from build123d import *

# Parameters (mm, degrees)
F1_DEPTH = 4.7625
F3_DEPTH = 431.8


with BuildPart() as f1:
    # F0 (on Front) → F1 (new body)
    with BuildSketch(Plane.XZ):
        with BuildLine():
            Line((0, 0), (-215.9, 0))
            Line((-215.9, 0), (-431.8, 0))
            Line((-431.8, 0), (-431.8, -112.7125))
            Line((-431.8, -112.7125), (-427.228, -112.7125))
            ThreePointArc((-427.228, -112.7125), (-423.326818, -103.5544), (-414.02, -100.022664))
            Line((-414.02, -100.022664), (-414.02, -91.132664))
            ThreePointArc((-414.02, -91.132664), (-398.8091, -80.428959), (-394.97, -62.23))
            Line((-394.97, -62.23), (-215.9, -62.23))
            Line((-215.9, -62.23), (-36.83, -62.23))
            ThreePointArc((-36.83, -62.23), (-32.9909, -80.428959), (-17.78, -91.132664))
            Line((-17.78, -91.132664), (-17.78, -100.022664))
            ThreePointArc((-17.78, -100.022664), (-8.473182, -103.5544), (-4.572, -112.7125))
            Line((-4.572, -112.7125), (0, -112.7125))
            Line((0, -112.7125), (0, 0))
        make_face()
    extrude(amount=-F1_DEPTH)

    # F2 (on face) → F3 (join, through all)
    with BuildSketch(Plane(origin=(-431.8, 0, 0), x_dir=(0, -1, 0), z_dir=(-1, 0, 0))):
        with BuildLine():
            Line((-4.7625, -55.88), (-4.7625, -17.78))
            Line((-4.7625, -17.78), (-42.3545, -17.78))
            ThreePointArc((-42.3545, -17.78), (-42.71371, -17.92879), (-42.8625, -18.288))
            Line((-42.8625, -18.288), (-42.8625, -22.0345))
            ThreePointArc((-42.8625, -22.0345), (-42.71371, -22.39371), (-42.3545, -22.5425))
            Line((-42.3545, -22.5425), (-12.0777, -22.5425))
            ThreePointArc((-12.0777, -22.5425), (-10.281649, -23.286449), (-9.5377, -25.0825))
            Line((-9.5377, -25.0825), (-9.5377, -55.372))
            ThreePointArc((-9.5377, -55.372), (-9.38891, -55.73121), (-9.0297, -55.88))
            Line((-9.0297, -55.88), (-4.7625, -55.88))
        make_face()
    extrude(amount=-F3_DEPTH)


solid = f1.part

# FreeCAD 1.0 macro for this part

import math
import FreeCAD as App
import Part
import Sketcher

V = App.Vector
Q = App.Units.Quantity

doc = App.newDocument("Part")
body = doc.addObject("PartDesign::Body", "Body")

# Sketch on XZ plane
sketch1 = doc.addObject("Sketcher::SketchObject", "Sketch")
body.addObject(sketch1)
sketch1.AttachmentSupport = (doc.XZ_Plane, [""])
sketch1.MapMode = "FlatFace"
sketch1.addGeometry([
    Part.LineSegment(V(0, 0, 0), V(-431.8, 0, 0)),  # 0
    Part.LineSegment(V(-431.8, 0, 0), V(-431.8, -112.7125, 0)),  # 1
    Part.LineSegment(V(-431.8, -112.7125, 0), V(-427.228, -112.7125, 0)),  # 2
    Part.ArcOfCircle(Part.Circle(V(-414.527999, -112.712501, 0), V(0, 0, 1), 12.700001), math.radians(87.70756), math.radians(179.999997)),  # 3
    Part.LineSegment(V(-414.02, -100.022664, 0), V(-414.02, -91.132664, 0)),  # 4
    Part.ArcOfCircle(Part.Circle(V(-420.016864, -66.450735, 0), V(0, 0, 1), 25.4), math.radians(-76.343704), math.radians(9.565248)),  # 5
    Part.LineSegment(V(-394.97, -62.23, 0), V(-36.83, -62.23, 0)),  # 6
    Part.ArcOfCircle(Part.Circle(V(-11.783136, -66.450735, 0), V(0, 0, 1), 25.4), math.radians(170.434752), math.radians(256.343704)),  # 7
    Part.LineSegment(V(-17.78, -91.132664, 0), V(-17.78, -100.022664, 0)),  # 8
    Part.ArcOfCircle(Part.Circle(V(-17.272001, -112.712501, 0), V(0, 0, 1), 12.700001), math.radians(0.000003), math.radians(92.29244)),  # 9
    Part.LineSegment(V(-4.572, -112.7125, 0), V(0, -112.7125, 0)),  # 10
    Part.LineSegment(V(0, -112.7125, 0), V(0, 0, 0)),  # 11
], False)
sketch1.addConstraint([
    Sketcher.Constraint("Coincident", 0, 2, 1, 1),
    Sketcher.Constraint("Coincident", 1, 2, 2, 1),
    Sketcher.Constraint("Coincident", 2, 2, 3, 2),
    Sketcher.Constraint("Coincident", 3, 1, 4, 1),
    Sketcher.Constraint("Coincident", 4, 2, 5, 1),
    Sketcher.Constraint("Coincident", 5, 2, 6, 1),
    Sketcher.Constraint("Coincident", 6, 2, 7, 1),
    Sketcher.Constraint("Coincident", 7, 2, 8, 1),
    Sketcher.Constraint("Coincident", 8, 2, 9, 2),
    Sketcher.Constraint("Coincident", 9, 1, 10, 1),
    Sketcher.Constraint("Coincident", 10, 2, 11, 1),
    Sketcher.Constraint("Coincident", 11, 2, 0, 1),
    Sketcher.Constraint("Horizontal", 0),
    Sketcher.Constraint("Vertical", 1),
    Sketcher.Constraint("Horizontal", 2),
    Sketcher.Constraint("Vertical", 4),
    Sketcher.Constraint("Horizontal", 6),
    Sketcher.Constraint("Vertical", 8),
    Sketcher.Constraint("Horizontal", 10),
    Sketcher.Constraint("Vertical", 11),
    Sketcher.Constraint("Coincident", 11, 2, -1, 1),
    Sketcher.Constraint("Equal", 5, 7),
    Sketcher.Constraint("Equal", 3, 9),
    Sketcher.Constraint("Horizontal", 5, 3, 7, 3),
    Sketcher.Constraint("Horizontal", 3, 3, 9, 3),
    Sketcher.Constraint("Horizontal", 9, 3, 1, 2),
    Sketcher.Constraint("Horizontal", 4, 2, 7, 2),
    Sketcher.Constraint("Horizontal", 3, 1, 8, 2),
    Sketcher.Constraint("Horizontal", 2, 2, 9, 1),
    Sketcher.Constraint("Equal", 2, 10),
    Sketcher.Constraint("Radius", 5, Q("1 in")),
    Sketcher.Constraint("Radius", 3, Q("0.5 in")),
    Sketcher.Constraint("DistanceX", 0, 2, 0, 1, Q("17 in")),
    Sketcher.Constraint("DistanceX", 6, 1, 6, 2, Q("14.1 in")),
    Sketcher.Constraint("DistanceX", 2, 1, 2, 2, Q("0.18 in")),
    Sketcher.Constraint("DistanceY", 4, 1, 4, 2, Q("0.35 in")),
    Sketcher.Constraint("DistanceX", 3, 1, -1, 1, Q("16.3 in")),
    Sketcher.Constraint("DistanceY", 1, 2, 1, 1, Q("4.4375 in")),
    Sketcher.Constraint("DistanceY", 5, 2, -1, 1, Q("2.45 in")),
])
pad1 = doc.addObject("PartDesign::Pad", "Pad")
body.addObject(pad1)
pad1.Profile = sketch1
pad1.Length = Q("0.1875 in")
pad1.Reversed = True

# Sketch on YZ plane
sketch2 = doc.addObject("Sketcher::SketchObject", "Sketch001")
body.addObject(sketch2)
sketch2.AttachmentSupport = (doc.YZ_Plane, [""])
sketch2.MapMode = "FlatFace"
sketch2.AttachmentOffset = App.Placement(V(0, 0, -17 * 25.4), App.Rotation())
sketch2.addGeometry([
    Part.LineSegment(V(4.7625, -55.88, 0), V(4.7625, -17.78, 0)),  # 0
    Part.LineSegment(V(4.7625, -17.78, 0), V(42.3545, -17.78, 0)),  # 1
    Part.ArcOfCircle(Part.Circle(V(42.354499, -18.288001, 0), V(0, 0, 1), 0.508001), math.radians(0.000094), math.radians(89.999906)),  # 2
    Part.LineSegment(V(42.8625, -18.288, 0), V(42.8625, -22.0345, 0)),  # 3
    Part.ArcOfCircle(Part.Circle(V(42.354499, -22.034499, 0), V(0, 0, 1), 0.508001), math.radians(-89.999906), math.radians(-0.000094)),  # 4
    Part.LineSegment(V(42.3545, -22.5425, 0), V(12.0777, -22.5425, 0)),  # 5
    Part.ArcOfCircle(Part.Circle(V(12.077701, -25.082501, 0), V(0, 0, 1), 2.540001), math.radians(90.000017), math.radians(179.999983)),  # 6
    Part.LineSegment(V(9.5377, -25.0825, 0), V(9.5377, -55.372, 0)),  # 7
    Part.ArcOfCircle(Part.Circle(V(9.029699, -55.371999, 0), V(0, 0, 1), 0.508001), math.radians(-89.999906), math.radians(-0.000094)),  # 8
    Part.LineSegment(V(9.0297, -55.88, 0), V(4.7625, -55.88, 0)),  # 9
], False)
sketch2.addConstraint([
    Sketcher.Constraint("Coincident", 0, 2, 1, 1),
    Sketcher.Constraint("Tangent", 1, 2, 2, 2),
    Sketcher.Constraint("Tangent", 2, 1, 3, 1),
    Sketcher.Constraint("Tangent", 3, 2, 4, 2),
    Sketcher.Constraint("Tangent", 4, 1, 5, 1),
    Sketcher.Constraint("Tangent", 5, 2, 6, 1),
    Sketcher.Constraint("Tangent", 6, 2, 7, 1),
    Sketcher.Constraint("Tangent", 7, 2, 8, 2),
    Sketcher.Constraint("Tangent", 8, 1, 9, 1),
    Sketcher.Constraint("Coincident", 9, 2, 0, 1),
    Sketcher.Constraint("Vertical", 0),
    Sketcher.Constraint("Horizontal", 1),
    Sketcher.Constraint("Vertical", 3),
    Sketcher.Constraint("Horizontal", 5),
    Sketcher.Constraint("Vertical", 7),
    Sketcher.Constraint("Horizontal", 9),
    Sketcher.Constraint("Equal", 2, 4),
    Sketcher.Constraint("Equal", 4, 8),
    Sketcher.Constraint("Radius", 6, Q("0.1 in")),
    Sketcher.Constraint("Radius", 2, Q("0.02 in")),
    Sketcher.Constraint("DistanceY", 0, 1, 0, 2, Q("1.5 in")),
    Sketcher.Constraint("DistanceX", 1, 1, 1, 2, Q("1.48 in")),
    Sketcher.Constraint("DistanceY", 0, 2, -1, 1, Q("0.7 in")),
    Sketcher.Constraint("DistanceX", 5, 2, 5, 1, Q("1.192 in")),
    Sketcher.Constraint("DistanceY", 3, 2, 3, 1, Q("0.1475 in")),
    Sketcher.Constraint("DistanceX", -1, 1, 0, 2, Q("0.1875 in")),
])
pad2 = doc.addObject("PartDesign::Pad", "Pad001")
body.addObject(pad2)
pad2.Profile = sketch2
pad2.Length = Q("17 in")

doc.recompute()
